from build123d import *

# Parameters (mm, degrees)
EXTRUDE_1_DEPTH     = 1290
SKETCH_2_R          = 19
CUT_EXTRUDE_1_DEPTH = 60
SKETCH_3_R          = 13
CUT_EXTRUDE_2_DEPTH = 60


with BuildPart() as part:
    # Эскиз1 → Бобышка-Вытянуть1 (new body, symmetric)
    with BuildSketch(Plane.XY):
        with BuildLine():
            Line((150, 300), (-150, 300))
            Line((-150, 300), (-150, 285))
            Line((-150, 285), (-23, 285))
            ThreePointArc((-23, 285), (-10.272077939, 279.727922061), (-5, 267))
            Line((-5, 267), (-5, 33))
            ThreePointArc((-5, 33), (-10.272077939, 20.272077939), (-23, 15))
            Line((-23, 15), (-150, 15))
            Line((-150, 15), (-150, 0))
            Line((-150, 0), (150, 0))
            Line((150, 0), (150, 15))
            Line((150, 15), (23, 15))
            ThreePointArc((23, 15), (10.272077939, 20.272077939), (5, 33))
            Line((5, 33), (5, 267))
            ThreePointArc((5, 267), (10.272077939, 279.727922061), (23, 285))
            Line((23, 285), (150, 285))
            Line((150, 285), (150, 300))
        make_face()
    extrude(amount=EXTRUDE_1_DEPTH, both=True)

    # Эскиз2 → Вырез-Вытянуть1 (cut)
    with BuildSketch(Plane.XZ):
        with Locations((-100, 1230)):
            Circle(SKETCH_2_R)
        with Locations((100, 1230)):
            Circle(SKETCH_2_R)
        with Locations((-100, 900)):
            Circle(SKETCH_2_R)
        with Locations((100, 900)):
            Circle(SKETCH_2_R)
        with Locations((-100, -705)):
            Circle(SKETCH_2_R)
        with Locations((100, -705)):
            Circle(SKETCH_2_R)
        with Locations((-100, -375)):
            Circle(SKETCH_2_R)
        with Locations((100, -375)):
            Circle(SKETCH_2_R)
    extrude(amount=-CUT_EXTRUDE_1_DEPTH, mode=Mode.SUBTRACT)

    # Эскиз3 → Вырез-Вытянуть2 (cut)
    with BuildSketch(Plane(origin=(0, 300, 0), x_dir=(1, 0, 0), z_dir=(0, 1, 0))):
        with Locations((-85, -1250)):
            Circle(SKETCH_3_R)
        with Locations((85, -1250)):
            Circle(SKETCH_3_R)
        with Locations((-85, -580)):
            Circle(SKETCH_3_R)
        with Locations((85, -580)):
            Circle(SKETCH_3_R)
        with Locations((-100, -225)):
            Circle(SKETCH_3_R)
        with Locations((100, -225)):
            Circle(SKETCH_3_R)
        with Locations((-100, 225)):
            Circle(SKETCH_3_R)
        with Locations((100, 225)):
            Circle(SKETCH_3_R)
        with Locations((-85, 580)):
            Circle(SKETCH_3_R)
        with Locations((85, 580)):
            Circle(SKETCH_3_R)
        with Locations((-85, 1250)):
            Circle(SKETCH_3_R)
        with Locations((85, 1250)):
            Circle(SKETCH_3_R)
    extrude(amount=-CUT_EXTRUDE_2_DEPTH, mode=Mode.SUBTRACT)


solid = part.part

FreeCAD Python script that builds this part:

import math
import FreeCAD as App
import Part
import Sketcher
from FreeCAD import Vector
Q = App.Units.Quantity

doc = App.newDocument("Part")
body = doc.addObject("PartDesign::Body", "Body")

# Sketch on XY plane
sketch1 = doc.addObject("Sketcher::SketchObject", "Sketch")
body.addObject(sketch1)
sketch1.AttachmentSupport = (doc.XY_Plane, [""])
sketch1.MapMode = "FlatFace"
sketch1.addGeometry(Part.LineSegment(Vector(150, 300, 0), Vector(-150, 300, 0)), False)
sketch1.addGeometry(Part.LineSegment(Vector(-150, 300, 0), Vector(-150, 285, 0)), False)
sketch1.addGeometry(Part.LineSegment(Vector(-150, 285, 0), Vector(-23, 285, 0)), False)
sketch1.addGeometry(Part.ArcOfCircle(Part.Circle(Vector(-23, 267, 0), Vector(0, 0, 1), 18), math.radians(0), math.radians(90)), False)
sketch1.addGeometry(Part.LineSegment(Vector(-5, 267, 0), Vector(-5, 33, 0)), False)
sketch1.addGeometry(Part.ArcOfCircle(Part.Circle(Vector(-23, 33, 0), Vector(0, 0, 1), 18), math.radians(-90), math.radians(0)), False)
sketch1.addGeometry(Part.LineSegment(Vector(-23, 15, 0), Vector(-150, 15, 0)), False)
sketch1.addGeometry(Part.LineSegment(Vector(-150, 15, 0), Vector(-150, 0, 0)), False)
sketch1.addGeometry(Part.LineSegment(Vector(-150, 0, 0), Vector(150, 0, 0)), False)
sketch1.addGeometry(Part.LineSegment(Vector(150, 0, 0), Vector(150, 15, 0)), False)
sketch1.addGeometry(Part.LineSegment(Vector(150, 15, 0), Vector(23, 15, 0)), False)
sketch1.addGeometry(Part.ArcOfCircle(Part.Circle(Vector(23, 33, 0), Vector(0, 0, 1), 18), math.radians(-180), math.radians(-90)), False)
sketch1.addGeometry(Part.LineSegment(Vector(5, 33, 0), Vector(5, 267, 0)), False)
sketch1.addGeometry(Part.ArcOfCircle(Part.Circle(Vector(23, 267, 0), Vector(0, 0, 1), 18), math.radians(90), math.radians(180)), False)
sketch1.addGeometry(Part.LineSegment(Vector(23, 285, 0), Vector(150, 285, 0)), False)
sketch1.addGeometry(Part.LineSegment(Vector(150, 285, 0), Vector(150, 300, 0)), False)
sketch1.addConstraint(Sketcher.Constraint("Coincident", 0, 2, 1, 1))
sketch1.addConstraint(Sketcher.Constraint("Coincident", 1, 2, 2, 1))
sketch1.addConstraint(Sketcher.Constraint("Tangent", 2, 2, 3, 2))
sketch1.addConstraint(Sketcher.Constraint("Tangent", 3, 1, 4, 1))
sketch1.addConstraint(Sketcher.Constraint("Tangent", 4, 2, 5, 2))
sketch1.addConstraint(Sketcher.Constraint("Tangent", 5, 1, 6, 1))
sketch1.addConstraint(Sketcher.Constraint("Coincident", 6, 2, 7, 1))
sketch1.addConstraint(Sketcher.Constraint("Coincident", 7, 2, 8, 1))
sketch1.addConstraint(Sketcher.Constraint("Coincident", 8, 2, 9, 1))
sketch1.addConstraint(Sketcher.Constraint("Coincident", 9, 2, 10, 1))
sketch1.addConstraint(Sketcher.Constraint("Tangent", 10, 2, 11, 2))
sketch1.addConstraint(Sketcher.Constraint("Tangent", 11, 1, 12, 1))
sketch1.addConstraint(Sketcher.Constraint("Tangent", 12, 2, 13, 2))
sketch1.addConstraint(Sketcher.Constraint("Tangent", 13, 1, 14, 1))
sketch1.addConstraint(Sketcher.Constraint("Coincident", 14, 2, 15, 1))
sketch1.addConstraint(Sketcher.Constraint("Coincident", 15, 2, 0, 1))
sketch1.addConstraint(Sketcher.Constraint("Horizontal", 0))
sketch1.addConstraint(Sketcher.Constraint("Vertical", 1))
sketch1.addConstraint(Sketcher.Constraint("Horizontal", 2))
sketch1.addConstraint(Sketcher.Constraint("Vertical", 4))
sketch1.addConstraint(Sketcher.Constraint("Horizontal", 6))
sketch1.addConstraint(Sketcher.Constraint("Vertical", 7))
sketch1.addConstraint(Sketcher.Constraint("Horizontal", 8))
sketch1.addConstraint(Sketcher.Constraint("Vertical", 9))
sketch1.addConstraint(Sketcher.Constraint("Horizontal", 10))
sketch1.addConstraint(Sketcher.Constraint("Vertical", 12))
sketch1.addConstraint(Sketcher.Constraint("Horizontal", 14))
sketch1.addConstraint(Sketcher.Constraint("Vertical", 15))
sketch1.addConstraint(Sketcher.Constraint("Equal", 3, 5))
sketch1.addConstraint(Sketcher.Constraint("Equal", 5, 11))
sketch1.addConstraint(Sketcher.Constraint("Equal", 11, 13))
sketch1.addConstraint(Sketcher.Constraint("Symmetric", 7, 2, 8, 2, -1, 1))
sketch1.addConstraint(Sketcher.Constraint("Symmetric", 5, 3, 11, 3, -2))
sketch1.addConstraint(Sketcher.Constraint("Symmetric", 1, 2, 14, 2, -2))
sketch1.addConstraint(Sketcher.Constraint("Vertical", 1, 2, 6, 2))
sketch1.addConstraint(Sketcher.Constraint("Equal", 1, 7))
sketch1.addConstraint(Sketcher.Constraint("Radius", 3, Q("18 mm")))
sketch1.addConstraint(Sketcher.Constraint("DistanceX", 0, 2, 0, 1, Q("300 mm")))
sketch1.addConstraint(Sketcher.Constraint("DistanceX", 2, 1, 2, 2, Q("127 mm")))
sketch1.addConstraint(Sketcher.Constraint("DistanceY", 1, 2, 1, 1, Q("15 mm")))
sketch1.addConstraint(Sketcher.Constraint("DistanceY", 4, 2, 4, 1, Q("234 mm")))
pad1 = doc.addObject("PartDesign::Pad", "Pad")
body.addObject(pad1)
pad1.Profile = sketch1
pad1.Length = 2580
pad1.Midplane = True

# Sketch on XZ plane
sketch2 = doc.addObject("Sketcher::SketchObject", "Sketch001")
body.addObject(sketch2)
sketch2.AttachmentSupport = (doc.XZ_Plane, [""])
sketch2.MapMode = "FlatFace"
sketch2.addGeometry(Part.Circle(Vector(-100, 1230, 0), Vector(0, 0, 1), 19), False)
sketch2.addGeometry(Part.Circle(Vector(100, 1230, 0), Vector(0, 0, 1), 19), False)
sketch2.addGeometry(Part.Circle(Vector(-100, 900, 0), Vector(0, 0, 1), 19), False)
sketch2.addGeometry(Part.Circle(Vector(100, 900, 0), Vector(0, 0, 1), 19), False)
sketch2.addGeometry(Part.Circle(Vector(-100, -705, 0), Vector(0, 0, 1), 19), False)
sketch2.addGeometry(Part.Circle(Vector(100, -705, 0), Vector(0, 0, 1), 19), False)
sketch2.addGeometry(Part.Circle(Vector(-100, -375, 0), Vector(0, 0, 1), 19), False)
sketch2.addGeometry(Part.Circle(Vector(100, -375, 0), Vector(0, 0, 1), 19), False)
sketch2.addConstraint(Sketcher.Constraint("Equal", 0, 1))
sketch2.addConstraint(Sketcher.Constraint("Equal", 1, 2))
sketch2.addConstraint(Sketcher.Constraint("Equal", 2, 3))
sketch2.addConstraint(Sketcher.Constraint("Equal", 3, 4))
sketch2.addConstraint(Sketcher.Constraint("Equal", 4, 5))
sketch2.addConstraint(Sketcher.Constraint("Equal", 5, 6))
sketch2.addConstraint(Sketcher.Constraint("Equal", 6, 7))
sketch2.addConstraint(Sketcher.Constraint("Symmetric", 0, 3, 1, 3, -2))
sketch2.addConstraint(Sketcher.Constraint("Symmetric", 2, 3, 3, 3, -2))
sketch2.addConstraint(Sketcher.Constraint("Symmetric", 4, 3, 5, 3, -2))
sketch2.addConstraint(Sketcher.Constraint("Symmetric", 6, 3, 7, 3, -2))
sketch2.addConstraint(Sketcher.Constraint("Vertical", 0, 3, 2, 3))
sketch2.addConstraint(Sketcher.Constraint("Vertical", 2, 3, 4, 3))
sketch2.addConstraint(Sketcher.Constraint("Vertical", 4, 3, 6, 3))
sketch2.addConstraint(Sketcher.Constraint("Diameter", 0, Q("38 mm")))
sketch2.addConstraint(Sketcher.Constraint("DistanceX", 0, 3, -1, 1, Q("100 mm")))
sketch2.addConstraint(Sketcher.Constraint("DistanceY", -1, 1, 0, 3, Q("1230 mm")))
sketch2.addConstraint(Sketcher.Constraint("DistanceY", -1, 1, 2, 3, Q("900 mm")))
sketch2.addConstraint(Sketcher.Constraint("DistanceY", 4, 3, -1, 1, Q("705 mm")))
sketch2.addConstraint(Sketcher.Constraint("DistanceY", 6, 3, -1, 1, Q("375 mm")))
pocket1 = doc.addObject("PartDesign::Pocket", "Pocket")
body.addObject(pocket1)
pocket1.Profile = sketch2
pocket1.Length = 60

# Sketch on XZ plane
sketch3 = doc.addObject("Sketcher::SketchObject", "Sketch002")
body.addObject(sketch3)
sketch3.AttachmentSupport = (doc.XZ_Plane, [""])
sketch3.MapMode = "FlatFace"
sketch3.AttachmentOffset = App.Placement(Vector(0, 0, -300), App.Rotation())
sketch3.addGeometry(Part.Circle(Vector(-85, 1250, 0), Vector(0, 0, 1), 13), False)
sketch3.addGeometry(Part.Circle(Vector(85, 1250, 0), Vector(0, 0, 1), 13), False)
sketch3.addGeometry(Part.Circle(Vector(-85, 580, 0), Vector(0, 0, 1), 13), False)
sketch3.addGeometry(Part.Circle(Vector(85, 580, 0), Vector(0, 0, 1), 13), False)
sketch3.addGeometry(Part.Circle(Vector(-100, 225, 0), Vector(0, 0, 1), 13), False)
sketch3.addGeometry(Part.Circle(Vector(100, 225, 0), Vector(0, 0, 1), 13), False)
sketch3.addGeometry(Part.Circle(Vector(-100, -225, 0), Vector(0, 0, 1), 13), False)
sketch3.addGeometry(Part.Circle(Vector(100, -225, 0), Vector(0, 0, 1), 13), False)
sketch3.addGeometry(Part.Circle(Vector(-85, -580, 0), Vector(0, 0, 1), 13), False)
sketch3.addGeometry(Part.Circle(Vector(85, -580, 0), Vector(0, 0, 1), 13), False)
sketch3.addGeometry(Part.Circle(Vector(-85, -1250, 0), Vector(0, 0, 1), 13), False)
sketch3.addGeometry(Part.Circle(Vector(85, -1250, 0), Vector(0, 0, 1), 13), False)
sketch3.addConstraint(Sketcher.Constraint("Equal", 0, 1))
sketch3.addConstraint(Sketcher.Constraint("Equal", 1, 2))
sketch3.addConstraint(Sketcher.Constraint("Equal", 2, 3))
sketch3.addConstraint(Sketcher.Constraint("Equal", 3, 4))
sketch3.addConstraint(Sketcher.Constraint("Equal", 4, 5))
sketch3.addConstraint(Sketcher.Constraint("Equal", 5, 6))
sketch3.addConstraint(Sketcher.Constraint("Equal", 6, 7))
sketch3.addConstraint(Sketcher.Constraint("Equal", 7, 8))
sketch3.addConstraint(Sketcher.Constraint("Equal", 8, 9))
sketch3.addConstraint(Sketcher.Constraint("Equal", 9, 10))
sketch3.addConstraint(Sketcher.Constraint("Equal", 10, 11))
sketch3.addConstraint(Sketcher.Constraint("Symmetric", 5, 3, 6, 3, -1, 1))
sketch3.addConstraint(Sketcher.Constraint("Symmetric", 4, 3, 7, 3, -1, 1))
sketch3.addConstraint(Sketcher.Constraint("Symmetric", 3, 3, 8, 3, -1, 1))
sketch3.addConstraint(Sketcher.Constraint("Symmetric", 2, 3, 9, 3, -1, 1))
sketch3.addConstraint(Sketcher.Constraint("Symmetric", 1, 3, 10, 3, -1, 1))
sketch3.addConstraint(Sketcher.Constraint("Symmetric", 0, 3, 11, 3, -1, 1))
sketch3.addConstraint(Sketcher.Constraint("Symmetric", 0, 3, 1, 3, -2))
sketch3.addConstraint(Sketcher.Constraint("Symmetric", 2, 3, 3, 3, -2))
sketch3.addConstraint(Sketcher.Constraint("Symmetric", 4, 3, 5, 3, -2))
sketch3.addConstraint(Sketcher.Constraint("Vertical", 0, 3, 2, 3))
sketch3.addConstraint(Sketcher.Constraint("Diameter", 0, Q("26 mm")))
sketch3.addConstraint(Sketcher.Constraint("DistanceX", 0, 3, -1, 1, Q("85 mm")))
sketch3.addConstraint(Sketcher.Constraint("DistanceY", -1, 1, 0, 3, Q("1250 mm")))
sketch3.addConstraint(Sketcher.Constraint("DistanceY", -1, 1, 2, 3, Q("580 mm")))
sketch3.addConstraint(Sketcher.Constraint("DistanceX", 4, 3, -1, 1, Q("100 mm")))
sketch3.addConstraint(Sketcher.Constraint("DistanceY", -1, 1, 4, 3, Q("225 mm")))
pocket2 = doc.addObject("PartDesign::Pocket", "Pocket001")
body.addObject(pocket2)
pocket2.Profile = sketch3
pocket2.Length = 60
pocket2.Reversed = True

doc.recompute()
